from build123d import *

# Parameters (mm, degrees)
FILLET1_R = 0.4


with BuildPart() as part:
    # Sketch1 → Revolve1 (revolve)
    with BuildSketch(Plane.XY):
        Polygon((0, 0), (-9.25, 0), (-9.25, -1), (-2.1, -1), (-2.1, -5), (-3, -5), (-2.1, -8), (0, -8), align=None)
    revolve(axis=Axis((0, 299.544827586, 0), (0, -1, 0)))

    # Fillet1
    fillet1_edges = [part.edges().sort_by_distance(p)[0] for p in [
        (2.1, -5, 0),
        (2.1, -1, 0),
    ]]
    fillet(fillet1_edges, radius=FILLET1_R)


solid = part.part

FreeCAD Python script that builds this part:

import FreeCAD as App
import Part
import Sketcher

V = App.Vector
Q = App.Units.Quantity


def edges_at(feature, points):
    """Names of the edges that pass closest to the given points."""
    edges = feature.Shape.Edges
    near = lambda p: min(range(len(edges)), key=lambda i: edges[i].distToShape(Part.Vertex(*p))[0])
    return sorted({f"Edge{near(p) + 1}" for p in points})


def add_polygon(sketch, points):
    """Adds a closed chain of lines whose ends are joined by coincident constraints."""
    first, n = sketch.GeometryCount, len(points)
    for a, b in zip(points, points[1:] + points[:1]):
        sketch.addGeometry(Part.LineSegment(App.Vector(*a, 0), App.Vector(*b, 0)), False)
    for i in range(n):
        sketch.addConstraint(Sketcher.Constraint("Coincident", first + i, 2, first + (i + 1) % n, 1))

doc = App.newDocument("Part")
body = doc.addObject("PartDesign::Body", "Body")

sketch1 = body.newObject("Sketcher::SketchObject", "Sketch")
sketch1.AttachmentSupport = (doc.getObject("XY_Plane"), [""])
sketch1.MapMode = "FlatFace"
add_polygon(sketch1, [(0, 0), (-9.25, 0), (-9.25, -1), (-2.1, -1), (-2.1, -5), (-3, -5), (-2.1, -8), (0, -8)])
sketch1.addConstraint([
    Sketcher.Constraint("Horizontal", 0),
    Sketcher.Constraint("Vertical", 1),
    Sketcher.Constraint("Horizontal", 2),
    Sketcher.Constraint("Vertical", 3),
    Sketcher.Constraint("Horizontal", 4),
    Sketcher.Constraint("Horizontal", 6),
    Sketcher.Constraint("Vertical", 7),
    Sketcher.Constraint("Coincident", 7, 2, -1, 1),
    Sketcher.Constraint("Vertical", 3, 2, 5, 2),
    Sketcher.Constraint("DistanceY", 1, 2, 1, 1, Q("1 mm")),
    Sketcher.Constraint("DistanceY", 3, 2, 3, 1, Q("4 mm")),
    Sketcher.Constraint("DistanceY", 7, 1, 7, 2, Q("8 mm")),
    Sketcher.Constraint("DistanceX", 4, 2, 4, 1, Q("0.9 mm")),
    Sketcher.Constraint("DistanceX", 6, 1, 6, 2, Q("2.1 mm")),
    Sketcher.Constraint("DistanceX", 0, 2, 0, 1, Q("9.25 mm")),
])
revolution = body.newObject("PartDesign::Revolution", "Revolution")
revolution.Profile = sketch1
revolution.ReferenceAxis = (sketch1, ["V_Axis"])
revolution.Angle = 360
doc.recompute()

fillet = body.newObject("PartDesign::Fillet", "Fillet")
fillet.Base = (revolution, edges_at(revolution, [(2.1, -5, 0), (2.1, -1, 0)]))
fillet.Radius = 0.4

doc.recompute()
